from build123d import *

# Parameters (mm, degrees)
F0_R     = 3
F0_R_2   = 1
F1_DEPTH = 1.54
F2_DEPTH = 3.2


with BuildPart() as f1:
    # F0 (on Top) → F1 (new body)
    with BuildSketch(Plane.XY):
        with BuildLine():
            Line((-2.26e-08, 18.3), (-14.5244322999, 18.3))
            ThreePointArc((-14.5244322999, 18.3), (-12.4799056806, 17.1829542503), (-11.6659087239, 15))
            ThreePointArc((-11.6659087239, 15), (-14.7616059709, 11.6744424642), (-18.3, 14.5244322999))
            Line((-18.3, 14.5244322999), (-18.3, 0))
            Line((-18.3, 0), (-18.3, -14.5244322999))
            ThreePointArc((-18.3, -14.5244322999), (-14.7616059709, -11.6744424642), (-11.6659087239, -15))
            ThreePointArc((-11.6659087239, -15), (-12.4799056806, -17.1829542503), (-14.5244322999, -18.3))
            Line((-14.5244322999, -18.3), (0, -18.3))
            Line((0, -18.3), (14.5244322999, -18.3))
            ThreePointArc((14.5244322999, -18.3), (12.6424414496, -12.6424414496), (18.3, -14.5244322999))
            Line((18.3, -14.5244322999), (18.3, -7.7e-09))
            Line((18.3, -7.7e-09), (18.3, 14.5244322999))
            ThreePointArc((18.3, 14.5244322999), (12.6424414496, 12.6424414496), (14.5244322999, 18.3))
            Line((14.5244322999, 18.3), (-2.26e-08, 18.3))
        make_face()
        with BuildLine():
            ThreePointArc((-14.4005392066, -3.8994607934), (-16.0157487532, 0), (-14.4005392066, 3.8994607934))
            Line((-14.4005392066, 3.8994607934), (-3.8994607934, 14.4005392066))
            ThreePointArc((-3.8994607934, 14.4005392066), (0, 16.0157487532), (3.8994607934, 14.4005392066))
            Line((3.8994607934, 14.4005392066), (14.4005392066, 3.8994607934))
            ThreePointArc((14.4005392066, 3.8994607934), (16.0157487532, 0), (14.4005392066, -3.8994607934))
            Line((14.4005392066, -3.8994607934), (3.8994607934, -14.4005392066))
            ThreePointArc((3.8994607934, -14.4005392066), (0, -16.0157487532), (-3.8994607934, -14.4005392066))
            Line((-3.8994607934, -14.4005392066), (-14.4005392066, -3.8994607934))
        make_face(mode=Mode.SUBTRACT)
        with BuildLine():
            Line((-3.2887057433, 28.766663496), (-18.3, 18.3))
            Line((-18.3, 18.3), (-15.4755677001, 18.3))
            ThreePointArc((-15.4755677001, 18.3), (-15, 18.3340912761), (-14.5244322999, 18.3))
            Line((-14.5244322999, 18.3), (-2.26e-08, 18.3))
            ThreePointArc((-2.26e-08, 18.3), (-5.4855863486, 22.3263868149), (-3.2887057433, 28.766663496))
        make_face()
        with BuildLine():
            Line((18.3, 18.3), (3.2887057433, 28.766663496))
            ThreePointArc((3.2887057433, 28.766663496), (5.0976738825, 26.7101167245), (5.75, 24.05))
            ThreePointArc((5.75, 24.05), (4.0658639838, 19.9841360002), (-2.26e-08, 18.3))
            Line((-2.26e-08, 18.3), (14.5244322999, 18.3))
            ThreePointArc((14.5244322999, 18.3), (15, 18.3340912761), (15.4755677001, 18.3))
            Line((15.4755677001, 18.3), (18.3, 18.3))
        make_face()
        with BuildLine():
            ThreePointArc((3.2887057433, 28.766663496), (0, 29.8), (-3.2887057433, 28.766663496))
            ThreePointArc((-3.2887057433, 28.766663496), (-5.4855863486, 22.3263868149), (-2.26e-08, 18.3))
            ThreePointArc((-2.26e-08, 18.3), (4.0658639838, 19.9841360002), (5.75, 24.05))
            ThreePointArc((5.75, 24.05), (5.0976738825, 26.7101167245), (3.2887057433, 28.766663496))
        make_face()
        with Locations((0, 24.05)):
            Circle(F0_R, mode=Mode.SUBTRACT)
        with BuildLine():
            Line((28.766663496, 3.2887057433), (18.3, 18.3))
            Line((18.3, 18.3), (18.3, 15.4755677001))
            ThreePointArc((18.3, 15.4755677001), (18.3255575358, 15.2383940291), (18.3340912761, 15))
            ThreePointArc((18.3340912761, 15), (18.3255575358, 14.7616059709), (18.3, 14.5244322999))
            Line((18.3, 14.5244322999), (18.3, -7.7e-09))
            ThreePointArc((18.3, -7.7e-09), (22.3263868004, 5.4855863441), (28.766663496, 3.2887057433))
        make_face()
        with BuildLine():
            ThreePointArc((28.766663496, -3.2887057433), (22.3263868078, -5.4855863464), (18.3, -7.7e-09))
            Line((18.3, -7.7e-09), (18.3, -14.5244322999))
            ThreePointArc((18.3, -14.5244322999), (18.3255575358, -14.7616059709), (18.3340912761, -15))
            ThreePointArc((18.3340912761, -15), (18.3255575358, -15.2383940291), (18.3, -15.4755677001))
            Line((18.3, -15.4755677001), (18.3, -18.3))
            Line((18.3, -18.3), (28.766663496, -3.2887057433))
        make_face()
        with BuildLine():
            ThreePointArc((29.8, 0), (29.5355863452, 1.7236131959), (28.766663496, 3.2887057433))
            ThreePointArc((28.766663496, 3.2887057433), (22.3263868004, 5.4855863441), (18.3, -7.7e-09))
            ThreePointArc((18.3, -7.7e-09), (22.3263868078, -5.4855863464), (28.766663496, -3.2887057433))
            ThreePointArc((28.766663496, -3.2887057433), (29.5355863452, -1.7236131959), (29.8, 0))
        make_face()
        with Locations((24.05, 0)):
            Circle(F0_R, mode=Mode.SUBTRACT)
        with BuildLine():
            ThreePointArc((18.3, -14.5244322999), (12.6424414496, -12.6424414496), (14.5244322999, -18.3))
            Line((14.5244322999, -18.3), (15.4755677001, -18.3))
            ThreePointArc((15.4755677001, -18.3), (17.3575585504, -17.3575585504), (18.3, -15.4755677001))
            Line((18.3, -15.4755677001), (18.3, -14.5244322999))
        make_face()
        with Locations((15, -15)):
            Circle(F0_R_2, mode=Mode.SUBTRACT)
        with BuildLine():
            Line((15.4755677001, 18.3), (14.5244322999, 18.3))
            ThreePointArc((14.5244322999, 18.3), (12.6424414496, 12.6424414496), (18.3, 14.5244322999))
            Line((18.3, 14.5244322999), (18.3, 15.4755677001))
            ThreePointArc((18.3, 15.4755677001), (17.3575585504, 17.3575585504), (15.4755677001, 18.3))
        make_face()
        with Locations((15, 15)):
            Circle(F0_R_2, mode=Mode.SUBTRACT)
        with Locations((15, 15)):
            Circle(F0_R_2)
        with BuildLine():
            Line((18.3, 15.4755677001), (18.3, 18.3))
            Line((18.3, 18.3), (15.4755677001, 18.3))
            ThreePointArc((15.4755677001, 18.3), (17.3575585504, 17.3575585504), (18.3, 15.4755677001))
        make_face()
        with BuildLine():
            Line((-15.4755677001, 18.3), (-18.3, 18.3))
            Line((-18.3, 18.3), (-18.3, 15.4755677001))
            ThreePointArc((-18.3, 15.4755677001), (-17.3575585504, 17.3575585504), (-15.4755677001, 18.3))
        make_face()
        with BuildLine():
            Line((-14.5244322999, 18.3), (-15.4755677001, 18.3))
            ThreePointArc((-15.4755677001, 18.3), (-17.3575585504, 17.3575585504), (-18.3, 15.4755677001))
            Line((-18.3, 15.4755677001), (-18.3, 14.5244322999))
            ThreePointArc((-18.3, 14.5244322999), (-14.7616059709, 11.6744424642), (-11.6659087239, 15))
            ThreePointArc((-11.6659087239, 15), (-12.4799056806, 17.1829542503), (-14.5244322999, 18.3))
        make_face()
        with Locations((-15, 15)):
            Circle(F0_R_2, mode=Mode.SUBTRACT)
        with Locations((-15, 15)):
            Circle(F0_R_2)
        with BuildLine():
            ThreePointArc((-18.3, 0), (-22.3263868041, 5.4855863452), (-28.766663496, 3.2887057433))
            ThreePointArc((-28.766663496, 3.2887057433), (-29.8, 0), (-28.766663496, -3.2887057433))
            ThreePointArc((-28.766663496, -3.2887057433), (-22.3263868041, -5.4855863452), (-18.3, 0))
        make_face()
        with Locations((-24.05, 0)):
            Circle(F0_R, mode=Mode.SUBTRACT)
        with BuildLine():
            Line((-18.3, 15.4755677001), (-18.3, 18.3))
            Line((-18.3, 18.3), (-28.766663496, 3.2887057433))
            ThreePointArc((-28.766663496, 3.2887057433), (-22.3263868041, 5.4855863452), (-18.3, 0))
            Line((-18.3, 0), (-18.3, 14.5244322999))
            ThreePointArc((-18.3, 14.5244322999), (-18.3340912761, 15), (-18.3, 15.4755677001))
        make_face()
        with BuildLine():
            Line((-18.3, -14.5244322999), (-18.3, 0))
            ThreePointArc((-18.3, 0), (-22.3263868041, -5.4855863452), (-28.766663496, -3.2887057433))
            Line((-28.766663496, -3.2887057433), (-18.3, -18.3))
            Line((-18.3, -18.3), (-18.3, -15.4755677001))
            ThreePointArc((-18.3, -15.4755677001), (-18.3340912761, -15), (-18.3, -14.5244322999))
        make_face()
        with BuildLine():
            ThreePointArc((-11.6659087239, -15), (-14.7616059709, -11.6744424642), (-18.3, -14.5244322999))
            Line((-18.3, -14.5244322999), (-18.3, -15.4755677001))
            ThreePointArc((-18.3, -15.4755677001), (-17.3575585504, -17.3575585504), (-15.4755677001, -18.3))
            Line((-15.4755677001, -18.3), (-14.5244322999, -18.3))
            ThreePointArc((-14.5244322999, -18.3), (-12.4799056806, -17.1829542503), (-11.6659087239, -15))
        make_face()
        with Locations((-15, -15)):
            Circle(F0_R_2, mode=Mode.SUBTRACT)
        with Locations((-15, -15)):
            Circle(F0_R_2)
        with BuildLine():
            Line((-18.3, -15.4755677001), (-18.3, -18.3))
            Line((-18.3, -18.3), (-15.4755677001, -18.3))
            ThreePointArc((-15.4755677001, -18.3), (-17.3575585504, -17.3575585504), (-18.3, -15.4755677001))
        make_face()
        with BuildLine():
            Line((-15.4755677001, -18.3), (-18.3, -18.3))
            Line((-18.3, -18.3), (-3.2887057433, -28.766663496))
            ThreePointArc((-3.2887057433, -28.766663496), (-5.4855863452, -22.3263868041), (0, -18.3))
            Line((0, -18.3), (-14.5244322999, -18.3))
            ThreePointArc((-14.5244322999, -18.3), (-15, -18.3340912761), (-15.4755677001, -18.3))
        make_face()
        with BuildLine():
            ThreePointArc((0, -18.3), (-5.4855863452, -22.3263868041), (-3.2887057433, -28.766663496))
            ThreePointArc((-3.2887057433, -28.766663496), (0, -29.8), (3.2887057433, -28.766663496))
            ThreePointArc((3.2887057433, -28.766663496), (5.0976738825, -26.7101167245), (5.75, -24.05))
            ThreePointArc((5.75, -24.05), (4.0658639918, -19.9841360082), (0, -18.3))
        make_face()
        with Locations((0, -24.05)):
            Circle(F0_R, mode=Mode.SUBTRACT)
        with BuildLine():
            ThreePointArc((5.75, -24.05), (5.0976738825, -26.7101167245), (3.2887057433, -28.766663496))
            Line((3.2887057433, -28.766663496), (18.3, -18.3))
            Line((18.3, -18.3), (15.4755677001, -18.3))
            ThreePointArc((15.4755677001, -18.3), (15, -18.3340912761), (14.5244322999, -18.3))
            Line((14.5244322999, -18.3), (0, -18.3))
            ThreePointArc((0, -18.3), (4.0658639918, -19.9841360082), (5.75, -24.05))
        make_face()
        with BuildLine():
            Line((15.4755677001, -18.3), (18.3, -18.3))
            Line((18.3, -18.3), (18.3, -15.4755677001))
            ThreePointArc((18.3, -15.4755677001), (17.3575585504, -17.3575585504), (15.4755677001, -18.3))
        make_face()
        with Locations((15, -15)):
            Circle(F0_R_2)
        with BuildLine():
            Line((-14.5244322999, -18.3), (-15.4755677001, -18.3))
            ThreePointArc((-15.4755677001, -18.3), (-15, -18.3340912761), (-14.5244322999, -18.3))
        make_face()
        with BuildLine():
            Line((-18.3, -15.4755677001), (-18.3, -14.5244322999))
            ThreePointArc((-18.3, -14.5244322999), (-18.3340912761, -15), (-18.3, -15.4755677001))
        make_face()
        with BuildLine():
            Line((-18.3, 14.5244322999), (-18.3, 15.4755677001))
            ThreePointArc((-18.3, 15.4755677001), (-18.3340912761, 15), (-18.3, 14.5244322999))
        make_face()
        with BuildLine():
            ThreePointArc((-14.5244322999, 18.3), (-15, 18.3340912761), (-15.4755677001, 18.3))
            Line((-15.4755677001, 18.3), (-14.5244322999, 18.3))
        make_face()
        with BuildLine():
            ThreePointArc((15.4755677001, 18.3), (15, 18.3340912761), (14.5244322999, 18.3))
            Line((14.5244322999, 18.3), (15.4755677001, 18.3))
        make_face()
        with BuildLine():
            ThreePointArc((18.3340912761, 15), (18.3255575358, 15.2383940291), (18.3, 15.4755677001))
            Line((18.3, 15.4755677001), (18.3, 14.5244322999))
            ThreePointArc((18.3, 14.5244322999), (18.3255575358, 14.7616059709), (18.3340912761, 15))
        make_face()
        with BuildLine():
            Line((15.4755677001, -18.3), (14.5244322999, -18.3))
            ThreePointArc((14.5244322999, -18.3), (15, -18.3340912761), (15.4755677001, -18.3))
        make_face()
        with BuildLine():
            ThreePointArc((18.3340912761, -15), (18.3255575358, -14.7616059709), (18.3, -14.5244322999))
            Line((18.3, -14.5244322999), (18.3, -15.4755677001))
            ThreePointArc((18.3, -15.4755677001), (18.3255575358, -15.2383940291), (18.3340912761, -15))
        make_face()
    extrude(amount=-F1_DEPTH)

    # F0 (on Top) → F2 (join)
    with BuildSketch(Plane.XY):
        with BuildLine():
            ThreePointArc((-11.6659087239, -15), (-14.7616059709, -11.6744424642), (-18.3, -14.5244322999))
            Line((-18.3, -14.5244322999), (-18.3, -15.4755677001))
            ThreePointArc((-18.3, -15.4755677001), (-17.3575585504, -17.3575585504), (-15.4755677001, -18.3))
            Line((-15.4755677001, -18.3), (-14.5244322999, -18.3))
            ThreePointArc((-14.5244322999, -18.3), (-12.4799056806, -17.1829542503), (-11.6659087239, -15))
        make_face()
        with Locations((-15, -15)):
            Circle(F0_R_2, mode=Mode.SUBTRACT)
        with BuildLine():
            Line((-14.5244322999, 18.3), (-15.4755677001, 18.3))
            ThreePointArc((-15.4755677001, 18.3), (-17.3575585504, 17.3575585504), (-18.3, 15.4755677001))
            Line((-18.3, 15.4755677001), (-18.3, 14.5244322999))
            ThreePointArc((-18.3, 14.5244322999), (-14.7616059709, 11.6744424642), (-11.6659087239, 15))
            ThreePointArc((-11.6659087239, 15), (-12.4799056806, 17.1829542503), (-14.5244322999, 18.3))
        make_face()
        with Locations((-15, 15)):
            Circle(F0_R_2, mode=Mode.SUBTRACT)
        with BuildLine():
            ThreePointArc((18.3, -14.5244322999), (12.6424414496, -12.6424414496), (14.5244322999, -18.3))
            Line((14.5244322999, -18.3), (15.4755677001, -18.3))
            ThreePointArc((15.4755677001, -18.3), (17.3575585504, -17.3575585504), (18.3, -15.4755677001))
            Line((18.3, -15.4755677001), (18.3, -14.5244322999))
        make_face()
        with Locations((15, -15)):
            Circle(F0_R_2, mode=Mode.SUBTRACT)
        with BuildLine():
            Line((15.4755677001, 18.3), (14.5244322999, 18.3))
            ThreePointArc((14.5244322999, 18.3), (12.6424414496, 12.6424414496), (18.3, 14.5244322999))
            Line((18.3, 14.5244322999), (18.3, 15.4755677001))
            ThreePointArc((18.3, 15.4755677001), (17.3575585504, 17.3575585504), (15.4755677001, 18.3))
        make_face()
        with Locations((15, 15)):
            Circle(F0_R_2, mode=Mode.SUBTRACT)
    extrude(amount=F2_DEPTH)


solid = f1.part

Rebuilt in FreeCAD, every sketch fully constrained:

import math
import FreeCAD as App
import Part
import Sketcher
from FreeCAD import Vector
Q = App.Units.Quantity

doc = App.newDocument("Part")
params = doc.addObject("Spreadsheet::Sheet", "Params")
for row, (alias, value) in enumerate([
    ("sketch1_diameter", "6 mm"),
    ("sketch1_radius", "5.75 mm"),
    ("sketch1_length", "18.3 mm"),
    ("pad1_length", "1.54 mm"),
    ("sketch2_diameter", "2 mm"),
    ("pad2_length", "3.2 mm"),
], start=1):
    params.set(f"A{row}", alias)
    params.set(f"B{row}", "=" + value)
    params.setAlias(f"B{row}", alias)

body = doc.addObject("PartDesign::Body", "Body")

# Sketch on XY plane
sketch1 = doc.addObject("Sketcher::SketchObject", "Sketch")
body.addObject(sketch1)
sketch1.AttachmentSupport = (doc.XY_Plane, [""])
sketch1.MapMode = "FlatFace"
sketch1.addGeometry([
    Part.LineSegment(Vector(3.3, -28.8, 0), Vector(18.3, -18.3, 0)),  # 0
    Part.LineSegment(Vector(18.3, -18.3, 0), Vector(28.8, -3.3, 0)),  # 1
    Part.ArcOfCircle(Part.Circle(Vector(24, 0, 0), Vector(0, 0, 1), 5.8), math.radians(-35), math.radians(0)),  # 2
    Part.ArcOfCircle(Part.Circle(Vector(24, 0, 0), Vector(0, 0, 1), 5.8), math.radians(0), math.radians(35)),  # 3
    Part.LineSegment(Vector(28.8, 3.3, 0), Vector(18.3, 18.3, 0)),  # 4
    Part.LineSegment(Vector(18.3, 18.3, 0), Vector(3.3, 28.8, 0)),  # 5
    Part.ArcOfCircle(Part.Circle(Vector(0, 24.1, 0), Vector(0, 0, 1), 5.8), math.radians(55), math.radians(125)),  # 6
    Part.LineSegment(Vector(-3.3, 28.8, 0), Vector(-18.3, 18.3, 0)),  # 7
    Part.LineSegment(Vector(-18.3, 18.3, 0), Vector(-28.8, 3.3, 0)),  # 8
    Part.ArcOfCircle(Part.Circle(Vector(-24.1, 0, 0), Vector(0, 0, 1), 5.8), math.radians(145), math.radians(215)),  # 9
    Part.LineSegment(Vector(-28.8, -3.3, 0), Vector(-18.3, -18.3, 0)),  # 10
    Part.LineSegment(Vector(-18.3, -18.3, 0), Vector(-3.3, -28.8, 0)),  # 11
    Part.ArcOfCircle(Part.Circle(Vector(0, -24.1, 0), Vector(0, 0, 1), 5.8), math.radians(-125), math.radians(-55)),  # 12
    Part.Circle(Vector(0, -24.1, 0), Vector(0, 0, 1), 3),  # 13
    Part.Circle(Vector(-24.1, 0, 0), Vector(0, 0, 1), 3),  # 14
    Part.LineSegment(Vector(-3.9, -14.4, 0), Vector(-14.4, -3.9, 0)),  # 15
    Part.ArcOfCircle(Part.Circle(Vector(-10.5, 0, 0), Vector(0, 0, 1), 5.5), math.radians(135), math.radians(225)),  # 16
    Part.LineSegment(Vector(-14.4, 3.9, 0), Vector(-3.9, 14.4, 0)),  # 17
    Part.ArcOfCircle(Part.Circle(Vector(0, 10.5, 0), Vector(0, 0, 1), 5.5), math.radians(45), math.radians(135)),  # 18
    Part.LineSegment(Vector(3.9, 14.4, 0), Vector(14.4, 3.9, 0)),  # 19
    Part.ArcOfCircle(Part.Circle(Vector(10.5, 0, 0), Vector(0, 0, 1), 5.5), math.radians(-45), math.radians(45)),  # 20
    Part.LineSegment(Vector(14.4, -3.9, 0), Vector(3.9, -14.4, 0)),  # 21
    Part.ArcOfCircle(Part.Circle(Vector(0, -10.5, 0), Vector(0, 0, 1), 5.5), math.radians(-135), math.radians(-45)),  # 22
    Part.Circle(Vector(24.1, 0, 0), Vector(0, 0, 1), 3),  # 23
    Part.Circle(Vector(0, 24.1, 0), Vector(0, 0, 1), 3),  # 24
], False)
sketch1.addConstraint([
    Sketcher.Constraint("Coincident", 0, 2, 1, 1),
    Sketcher.Constraint("Tangent", 1, 2, 2, 1),
    Sketcher.Constraint("Tangent", 2, 2, 3, 1),
    Sketcher.Constraint("Tangent", 3, 2, 4, 1),
    Sketcher.Constraint("Coincident", 4, 2, 5, 1),
    Sketcher.Constraint("Tangent", 5, 2, 6, 1),
    Sketcher.Constraint("Tangent", 6, 2, 7, 1),
    Sketcher.Constraint("Coincident", 7, 2, 8, 1),
    Sketcher.Constraint("Tangent", 8, 2, 9, 1),
    Sketcher.Constraint("Tangent", 9, 2, 10, 1),
    Sketcher.Constraint("Coincident", 10, 2, 11, 1),
    Sketcher.Constraint("Tangent", 11, 2, 12, 1),
    Sketcher.Constraint("Tangent", 12, 2, 0, 1),
    Sketcher.Constraint("Tangent", 15, 2, 16, 2),
    Sketcher.Constraint("Tangent", 16, 1, 17, 1),
    Sketcher.Constraint("Tangent", 17, 2, 18, 2),
    Sketcher.Constraint("Tangent", 18, 1, 19, 1),
    Sketcher.Constraint("Tangent", 19, 2, 20, 2),
    Sketcher.Constraint("Tangent", 20, 1, 21, 1),
    Sketcher.Constraint("Tangent", 21, 2, 22, 2),
    Sketcher.Constraint("Tangent", 22, 1, 15, 1),
    Sketcher.Constraint("Coincident", 13, 3, 12, 3),
    Sketcher.Constraint("Coincident", 14, 3, 9, 3),
    Sketcher.Constraint("Coincident", 23, 3, 2, 3),
    Sketcher.Constraint("Coincident", 24, 3, 6, 3),
    Sketcher.Constraint("Equal", 2, 3),
    Sketcher.Constraint("Equal", 3, 6),
    Sketcher.Constraint("Equal", 6, 9),
    Sketcher.Constraint("Equal", 9, 12),
    Sketcher.Constraint("Equal", 13, 14),
    Sketcher.Constraint("Equal", 16, 18),
    Sketcher.Constraint("Equal", 18, 20),
    Sketcher.Constraint("Equal", 20, 22),
    Sketcher.Constraint("Equal", 14, 23),
    Sketcher.Constraint("Equal", 23, 24),
    Sketcher.Constraint("Symmetric", 2, 3, 9, 3, -1, 1),
    Sketcher.Constraint("Symmetric", 6, 3, 12, 3, -1, 1),
    Sketcher.Constraint("Symmetric", 16, 3, 20, 3, -1, 1),
    Sketcher.Constraint("Symmetric", 18, 3, 22, 3, -1, 1),
    Sketcher.Constraint("Symmetric", 0, 2, 7, 2, -1, 1),
    Sketcher.Constraint("Symmetric", 4, 2, 10, 2, -1, 1),
    Sketcher.Constraint("Symmetric", 5, 2, 6, 2, -2),
    Sketcher.Constraint("Symmetric", 3, 2, 8, 2, -2),
    Sketcher.Constraint("Symmetric", 17, 2, 18, 1, -2),
    Sketcher.Constraint("PointOnObject", 2, 2, -1),
    Sketcher.Constraint("Perpendicular", 0, 4),
    Sketcher.Constraint("Perpendicular", 15, 17),
    Sketcher.Constraint("Equal", 0, 1),
    Sketcher.Constraint("Diameter", 13, Q("6 mm")),
    Sketcher.Constraint("Radius", 2, Q("5.75 mm")),
    Sketcher.Constraint("Distance", 0, Q("18.3 mm")),
    Sketcher.Constraint("DistanceX", -1, 1, 0, 2, Q("18.3 mm")),
    Sketcher.Constraint("Radius", 16, Q("5.51467 mm")),
    Sketcher.Constraint("DistanceX", 16, 3, -1, 1, Q("10.501078 mm")),
])
sketch1.setExpression("Constraints[48]", "Params.sketch1_diameter")
sketch1.setExpression("Constraints[49]", "Params.sketch1_radius")
sketch1.setExpression("Constraints[50]", "Params.sketch1_length")
pad1 = doc.addObject("PartDesign::Pad", "Pad")
body.addObject(pad1)
pad1.Profile = sketch1
pad1.setExpression("Length", "Params.pad1_length")
pad1.Reversed = True

# Sketch on XY plane
sketch2 = doc.addObject("Sketcher::SketchObject", "Sketch001")
body.addObject(sketch2)
sketch2.AttachmentSupport = (doc.XY_Plane, [""])
sketch2.MapMode = "FlatFace"
sketch2.addGeometry([
    Part.ArcOfCircle(Part.Circle(Vector(-15, -15, 0), Vector(0, 0, 1), 3.3), math.radians(0), math.radians(172)),  # 0
    Part.LineSegment(Vector(-18.3, -14.5, 0), Vector(-18.3, -15.5, 0)),  # 1
    Part.ArcOfCircle(Part.Circle(Vector(-15, -15, 0), Vector(0, 0, 1), 3.3), math.radians(-172), math.radians(-98)),  # 2
    Part.LineSegment(Vector(-15.5, -18.3, 0), Vector(-14.5, -18.3, 0)),  # 3
    Part.ArcOfCircle(Part.Circle(Vector(-15, -15, 0), Vector(0, 0, 1), 3.3), math.radians(-82), math.radians(0)),  # 4
    Part.Circle(Vector(-15, -15, 0), Vector(0, 0, 1), 1),  # 5
    Part.LineSegment(Vector(-14.5, 18.3, 0), Vector(-15.5, 18.3, 0)),  # 6
    Part.ArcOfCircle(Part.Circle(Vector(-15, 15, 0), Vector(0, 0, 1), 3.3), math.radians(98), math.radians(172)),  # 7
    Part.LineSegment(Vector(-18.3, 15.5, 0), Vector(-18.3, 14.5, 0)),  # 8
    Part.ArcOfCircle(Part.Circle(Vector(-15, 15, 0), Vector(0, 0, 1), 3.3), math.radians(-172), math.radians(0)),  # 9
    Part.ArcOfCircle(Part.Circle(Vector(-15, 15, 0), Vector(0, 0, 1), 3.3), math.radians(0), math.radians(82)),  # 10
    Part.Circle(Vector(-15, 15, 0), Vector(0, 0, 1), 1),  # 11
    Part.ArcOfCircle(Part.Circle(Vector(15, -15, 0), Vector(0, 0, 1), 3.3), math.radians(8), math.radians(262)),  # 12
    Part.LineSegment(Vector(14.5, -18.3, 0), Vector(15.5, -18.3, 0)),  # 13
    Part.ArcOfCircle(Part.Circle(Vector(15, -15, 0), Vector(0, 0, 1), 3.3), math.radians(-82), math.radians(-8)),  # 14
    Part.LineSegment(Vector(18.3, -15.5, 0), Vector(18.3, -14.5, 0)),  # 15
    Part.Circle(Vector(15, -15, 0), Vector(0, 0, 1), 1),  # 16
    Part.LineSegment(Vector(15.5, 18.3, 0), Vector(14.5, 18.3, 0)),  # 17
    Part.ArcOfCircle(Part.Circle(Vector(15, 15, 0), Vector(0, 0, 1), 3.3), math.radians(98), math.radians(352)),  # 18
    Part.LineSegment(Vector(18.3, 14.5, 0), Vector(18.3, 15.5, 0)),  # 19
    Part.ArcOfCircle(Part.Circle(Vector(15, 15, 0), Vector(0, 0, 1), 3.3), math.radians(8), math.radians(82)),  # 20
    Part.Circle(Vector(15, 15, 0), Vector(0, 0, 1), 1),  # 21
], False)
sketch2.addConstraint([
    Sketcher.Constraint("Coincident", 0, 2, 1, 1),
    Sketcher.Constraint("Coincident", 1, 2, 2, 1),
    Sketcher.Constraint("Coincident", 2, 2, 3, 1),
    Sketcher.Constraint("Coincident", 3, 2, 4, 1),
    Sketcher.Constraint("Tangent", 4, 2, 0, 1),
    Sketcher.Constraint("Coincident", 6, 2, 7, 1),
    Sketcher.Constraint("Coincident", 7, 2, 8, 1),
    Sketcher.Constraint("Coincident", 8, 2, 9, 1),
    Sketcher.Constraint("Tangent", 9, 2, 10, 1),
    Sketcher.Constraint("Coincident", 10, 2, 6, 1),
    Sketcher.Constraint("Coincident", 12, 2, 13, 1),
    Sketcher.Constraint("Coincident", 13, 2, 14, 1),
    Sketcher.Constraint("Coincident", 14, 2, 15, 1),
    Sketcher.Constraint("Coincident", 15, 2, 12, 1),
    Sketcher.Constraint("Coincident", 17, 2, 18, 1),
    Sketcher.Constraint("Coincident", 18, 2, 19, 1),
    Sketcher.Constraint("Coincident", 19, 2, 20, 1),
    Sketcher.Constraint("Coincident", 20, 2, 17, 1),
    Sketcher.Constraint("Vertical", 1),
    Sketcher.Constraint("Horizontal", 3),
    Sketcher.Constraint("Horizontal", 6),
    Sketcher.Constraint("Vertical", 8),
    Sketcher.Constraint("Horizontal", 13),
    Sketcher.Constraint("Vertical", 15),
    Sketcher.Constraint("Horizontal", 17),
    Sketcher.Constraint("Vertical", 19),
    Sketcher.Constraint("Coincident", 2, 3, 0, 3),
    Sketcher.Constraint("Coincident", 5, 3, 0, 3),
    Sketcher.Constraint("Coincident", 9, 3, 7, 3),
    Sketcher.Constraint("Coincident", 11, 3, 7, 3),
    Sketcher.Constraint("Coincident", 14, 3, 12, 3),
    Sketcher.Constraint("Coincident", 16, 3, 12, 3),
    Sketcher.Constraint("Coincident", 20, 3, 18, 3),
    Sketcher.Constraint("Coincident", 21, 3, 18, 3),
    Sketcher.Constraint("Equal", 0, 2),
    Sketcher.Constraint("Equal", 2, 4),
    Sketcher.Constraint("Equal", 4, 7),
    Sketcher.Constraint("Equal", 7, 9),
    Sketcher.Constraint("Equal", 9, 10),
    Sketcher.Constraint("Equal", 5, 11),
    Sketcher.Constraint("Equal", 10, 12),
    Sketcher.Constraint("Equal", 12, 14),
    Sketcher.Constraint("Equal", 11, 16),
    Sketcher.Constraint("Equal", 14, 18),
    Sketcher.Constraint("Equal", 18, 20),
    Sketcher.Constraint("Equal", 16, 21),
    Sketcher.Constraint("Symmetric", 7, 3, 12, 3, -1, 1),
    Sketcher.Constraint("Symmetric", 0, 3, 18, 3, -1, 1),
    Sketcher.Constraint("Symmetric", 0, 3, 12, 3, -2),
    Sketcher.Constraint("Horizontal", 16, 3, 4, 2),
    Sketcher.Constraint("Horizontal", 21, 3, 9, 2),
    Sketcher.Constraint("Horizontal", 3, 2, 12, 2),
    Sketcher.Constraint("Horizontal", 1, 2, 14, 2),
    Sketcher.Constraint("Horizontal", 10, 2, 17, 2),
    Sketcher.Constraint("Horizontal", 8, 2, 18, 2),
    Sketcher.Constraint("Vertical", 2, 2, 6, 2),
    Sketcher.Constraint("Vertical", 1, 2, 7, 2),
    Sketcher.Constraint("Equal", 17, 1),
    Sketcher.Constraint("Diameter", 5, Q("2 mm")),
    Sketcher.Constraint("DistanceX", 0, 3, -1, 1, Q("15 mm")),
    Sketcher.Constraint("DistanceY", 0, 3, -1, 1, Q("15 mm")),
    Sketcher.Constraint("DistanceX", 0, 2, -1, 1, Q("18.3 mm")),
    Sketcher.Constraint("Radius", 0, Q("3.334091 mm")),
])
sketch2.setExpression("Constraints[58]", "Params.sketch2_diameter")
pad2 = doc.addObject("PartDesign::Pad", "Pad001")
body.addObject(pad2)
pad2.Profile = sketch2
pad2.setExpression("Length", "Params.pad2_length")

doc.recompute()
